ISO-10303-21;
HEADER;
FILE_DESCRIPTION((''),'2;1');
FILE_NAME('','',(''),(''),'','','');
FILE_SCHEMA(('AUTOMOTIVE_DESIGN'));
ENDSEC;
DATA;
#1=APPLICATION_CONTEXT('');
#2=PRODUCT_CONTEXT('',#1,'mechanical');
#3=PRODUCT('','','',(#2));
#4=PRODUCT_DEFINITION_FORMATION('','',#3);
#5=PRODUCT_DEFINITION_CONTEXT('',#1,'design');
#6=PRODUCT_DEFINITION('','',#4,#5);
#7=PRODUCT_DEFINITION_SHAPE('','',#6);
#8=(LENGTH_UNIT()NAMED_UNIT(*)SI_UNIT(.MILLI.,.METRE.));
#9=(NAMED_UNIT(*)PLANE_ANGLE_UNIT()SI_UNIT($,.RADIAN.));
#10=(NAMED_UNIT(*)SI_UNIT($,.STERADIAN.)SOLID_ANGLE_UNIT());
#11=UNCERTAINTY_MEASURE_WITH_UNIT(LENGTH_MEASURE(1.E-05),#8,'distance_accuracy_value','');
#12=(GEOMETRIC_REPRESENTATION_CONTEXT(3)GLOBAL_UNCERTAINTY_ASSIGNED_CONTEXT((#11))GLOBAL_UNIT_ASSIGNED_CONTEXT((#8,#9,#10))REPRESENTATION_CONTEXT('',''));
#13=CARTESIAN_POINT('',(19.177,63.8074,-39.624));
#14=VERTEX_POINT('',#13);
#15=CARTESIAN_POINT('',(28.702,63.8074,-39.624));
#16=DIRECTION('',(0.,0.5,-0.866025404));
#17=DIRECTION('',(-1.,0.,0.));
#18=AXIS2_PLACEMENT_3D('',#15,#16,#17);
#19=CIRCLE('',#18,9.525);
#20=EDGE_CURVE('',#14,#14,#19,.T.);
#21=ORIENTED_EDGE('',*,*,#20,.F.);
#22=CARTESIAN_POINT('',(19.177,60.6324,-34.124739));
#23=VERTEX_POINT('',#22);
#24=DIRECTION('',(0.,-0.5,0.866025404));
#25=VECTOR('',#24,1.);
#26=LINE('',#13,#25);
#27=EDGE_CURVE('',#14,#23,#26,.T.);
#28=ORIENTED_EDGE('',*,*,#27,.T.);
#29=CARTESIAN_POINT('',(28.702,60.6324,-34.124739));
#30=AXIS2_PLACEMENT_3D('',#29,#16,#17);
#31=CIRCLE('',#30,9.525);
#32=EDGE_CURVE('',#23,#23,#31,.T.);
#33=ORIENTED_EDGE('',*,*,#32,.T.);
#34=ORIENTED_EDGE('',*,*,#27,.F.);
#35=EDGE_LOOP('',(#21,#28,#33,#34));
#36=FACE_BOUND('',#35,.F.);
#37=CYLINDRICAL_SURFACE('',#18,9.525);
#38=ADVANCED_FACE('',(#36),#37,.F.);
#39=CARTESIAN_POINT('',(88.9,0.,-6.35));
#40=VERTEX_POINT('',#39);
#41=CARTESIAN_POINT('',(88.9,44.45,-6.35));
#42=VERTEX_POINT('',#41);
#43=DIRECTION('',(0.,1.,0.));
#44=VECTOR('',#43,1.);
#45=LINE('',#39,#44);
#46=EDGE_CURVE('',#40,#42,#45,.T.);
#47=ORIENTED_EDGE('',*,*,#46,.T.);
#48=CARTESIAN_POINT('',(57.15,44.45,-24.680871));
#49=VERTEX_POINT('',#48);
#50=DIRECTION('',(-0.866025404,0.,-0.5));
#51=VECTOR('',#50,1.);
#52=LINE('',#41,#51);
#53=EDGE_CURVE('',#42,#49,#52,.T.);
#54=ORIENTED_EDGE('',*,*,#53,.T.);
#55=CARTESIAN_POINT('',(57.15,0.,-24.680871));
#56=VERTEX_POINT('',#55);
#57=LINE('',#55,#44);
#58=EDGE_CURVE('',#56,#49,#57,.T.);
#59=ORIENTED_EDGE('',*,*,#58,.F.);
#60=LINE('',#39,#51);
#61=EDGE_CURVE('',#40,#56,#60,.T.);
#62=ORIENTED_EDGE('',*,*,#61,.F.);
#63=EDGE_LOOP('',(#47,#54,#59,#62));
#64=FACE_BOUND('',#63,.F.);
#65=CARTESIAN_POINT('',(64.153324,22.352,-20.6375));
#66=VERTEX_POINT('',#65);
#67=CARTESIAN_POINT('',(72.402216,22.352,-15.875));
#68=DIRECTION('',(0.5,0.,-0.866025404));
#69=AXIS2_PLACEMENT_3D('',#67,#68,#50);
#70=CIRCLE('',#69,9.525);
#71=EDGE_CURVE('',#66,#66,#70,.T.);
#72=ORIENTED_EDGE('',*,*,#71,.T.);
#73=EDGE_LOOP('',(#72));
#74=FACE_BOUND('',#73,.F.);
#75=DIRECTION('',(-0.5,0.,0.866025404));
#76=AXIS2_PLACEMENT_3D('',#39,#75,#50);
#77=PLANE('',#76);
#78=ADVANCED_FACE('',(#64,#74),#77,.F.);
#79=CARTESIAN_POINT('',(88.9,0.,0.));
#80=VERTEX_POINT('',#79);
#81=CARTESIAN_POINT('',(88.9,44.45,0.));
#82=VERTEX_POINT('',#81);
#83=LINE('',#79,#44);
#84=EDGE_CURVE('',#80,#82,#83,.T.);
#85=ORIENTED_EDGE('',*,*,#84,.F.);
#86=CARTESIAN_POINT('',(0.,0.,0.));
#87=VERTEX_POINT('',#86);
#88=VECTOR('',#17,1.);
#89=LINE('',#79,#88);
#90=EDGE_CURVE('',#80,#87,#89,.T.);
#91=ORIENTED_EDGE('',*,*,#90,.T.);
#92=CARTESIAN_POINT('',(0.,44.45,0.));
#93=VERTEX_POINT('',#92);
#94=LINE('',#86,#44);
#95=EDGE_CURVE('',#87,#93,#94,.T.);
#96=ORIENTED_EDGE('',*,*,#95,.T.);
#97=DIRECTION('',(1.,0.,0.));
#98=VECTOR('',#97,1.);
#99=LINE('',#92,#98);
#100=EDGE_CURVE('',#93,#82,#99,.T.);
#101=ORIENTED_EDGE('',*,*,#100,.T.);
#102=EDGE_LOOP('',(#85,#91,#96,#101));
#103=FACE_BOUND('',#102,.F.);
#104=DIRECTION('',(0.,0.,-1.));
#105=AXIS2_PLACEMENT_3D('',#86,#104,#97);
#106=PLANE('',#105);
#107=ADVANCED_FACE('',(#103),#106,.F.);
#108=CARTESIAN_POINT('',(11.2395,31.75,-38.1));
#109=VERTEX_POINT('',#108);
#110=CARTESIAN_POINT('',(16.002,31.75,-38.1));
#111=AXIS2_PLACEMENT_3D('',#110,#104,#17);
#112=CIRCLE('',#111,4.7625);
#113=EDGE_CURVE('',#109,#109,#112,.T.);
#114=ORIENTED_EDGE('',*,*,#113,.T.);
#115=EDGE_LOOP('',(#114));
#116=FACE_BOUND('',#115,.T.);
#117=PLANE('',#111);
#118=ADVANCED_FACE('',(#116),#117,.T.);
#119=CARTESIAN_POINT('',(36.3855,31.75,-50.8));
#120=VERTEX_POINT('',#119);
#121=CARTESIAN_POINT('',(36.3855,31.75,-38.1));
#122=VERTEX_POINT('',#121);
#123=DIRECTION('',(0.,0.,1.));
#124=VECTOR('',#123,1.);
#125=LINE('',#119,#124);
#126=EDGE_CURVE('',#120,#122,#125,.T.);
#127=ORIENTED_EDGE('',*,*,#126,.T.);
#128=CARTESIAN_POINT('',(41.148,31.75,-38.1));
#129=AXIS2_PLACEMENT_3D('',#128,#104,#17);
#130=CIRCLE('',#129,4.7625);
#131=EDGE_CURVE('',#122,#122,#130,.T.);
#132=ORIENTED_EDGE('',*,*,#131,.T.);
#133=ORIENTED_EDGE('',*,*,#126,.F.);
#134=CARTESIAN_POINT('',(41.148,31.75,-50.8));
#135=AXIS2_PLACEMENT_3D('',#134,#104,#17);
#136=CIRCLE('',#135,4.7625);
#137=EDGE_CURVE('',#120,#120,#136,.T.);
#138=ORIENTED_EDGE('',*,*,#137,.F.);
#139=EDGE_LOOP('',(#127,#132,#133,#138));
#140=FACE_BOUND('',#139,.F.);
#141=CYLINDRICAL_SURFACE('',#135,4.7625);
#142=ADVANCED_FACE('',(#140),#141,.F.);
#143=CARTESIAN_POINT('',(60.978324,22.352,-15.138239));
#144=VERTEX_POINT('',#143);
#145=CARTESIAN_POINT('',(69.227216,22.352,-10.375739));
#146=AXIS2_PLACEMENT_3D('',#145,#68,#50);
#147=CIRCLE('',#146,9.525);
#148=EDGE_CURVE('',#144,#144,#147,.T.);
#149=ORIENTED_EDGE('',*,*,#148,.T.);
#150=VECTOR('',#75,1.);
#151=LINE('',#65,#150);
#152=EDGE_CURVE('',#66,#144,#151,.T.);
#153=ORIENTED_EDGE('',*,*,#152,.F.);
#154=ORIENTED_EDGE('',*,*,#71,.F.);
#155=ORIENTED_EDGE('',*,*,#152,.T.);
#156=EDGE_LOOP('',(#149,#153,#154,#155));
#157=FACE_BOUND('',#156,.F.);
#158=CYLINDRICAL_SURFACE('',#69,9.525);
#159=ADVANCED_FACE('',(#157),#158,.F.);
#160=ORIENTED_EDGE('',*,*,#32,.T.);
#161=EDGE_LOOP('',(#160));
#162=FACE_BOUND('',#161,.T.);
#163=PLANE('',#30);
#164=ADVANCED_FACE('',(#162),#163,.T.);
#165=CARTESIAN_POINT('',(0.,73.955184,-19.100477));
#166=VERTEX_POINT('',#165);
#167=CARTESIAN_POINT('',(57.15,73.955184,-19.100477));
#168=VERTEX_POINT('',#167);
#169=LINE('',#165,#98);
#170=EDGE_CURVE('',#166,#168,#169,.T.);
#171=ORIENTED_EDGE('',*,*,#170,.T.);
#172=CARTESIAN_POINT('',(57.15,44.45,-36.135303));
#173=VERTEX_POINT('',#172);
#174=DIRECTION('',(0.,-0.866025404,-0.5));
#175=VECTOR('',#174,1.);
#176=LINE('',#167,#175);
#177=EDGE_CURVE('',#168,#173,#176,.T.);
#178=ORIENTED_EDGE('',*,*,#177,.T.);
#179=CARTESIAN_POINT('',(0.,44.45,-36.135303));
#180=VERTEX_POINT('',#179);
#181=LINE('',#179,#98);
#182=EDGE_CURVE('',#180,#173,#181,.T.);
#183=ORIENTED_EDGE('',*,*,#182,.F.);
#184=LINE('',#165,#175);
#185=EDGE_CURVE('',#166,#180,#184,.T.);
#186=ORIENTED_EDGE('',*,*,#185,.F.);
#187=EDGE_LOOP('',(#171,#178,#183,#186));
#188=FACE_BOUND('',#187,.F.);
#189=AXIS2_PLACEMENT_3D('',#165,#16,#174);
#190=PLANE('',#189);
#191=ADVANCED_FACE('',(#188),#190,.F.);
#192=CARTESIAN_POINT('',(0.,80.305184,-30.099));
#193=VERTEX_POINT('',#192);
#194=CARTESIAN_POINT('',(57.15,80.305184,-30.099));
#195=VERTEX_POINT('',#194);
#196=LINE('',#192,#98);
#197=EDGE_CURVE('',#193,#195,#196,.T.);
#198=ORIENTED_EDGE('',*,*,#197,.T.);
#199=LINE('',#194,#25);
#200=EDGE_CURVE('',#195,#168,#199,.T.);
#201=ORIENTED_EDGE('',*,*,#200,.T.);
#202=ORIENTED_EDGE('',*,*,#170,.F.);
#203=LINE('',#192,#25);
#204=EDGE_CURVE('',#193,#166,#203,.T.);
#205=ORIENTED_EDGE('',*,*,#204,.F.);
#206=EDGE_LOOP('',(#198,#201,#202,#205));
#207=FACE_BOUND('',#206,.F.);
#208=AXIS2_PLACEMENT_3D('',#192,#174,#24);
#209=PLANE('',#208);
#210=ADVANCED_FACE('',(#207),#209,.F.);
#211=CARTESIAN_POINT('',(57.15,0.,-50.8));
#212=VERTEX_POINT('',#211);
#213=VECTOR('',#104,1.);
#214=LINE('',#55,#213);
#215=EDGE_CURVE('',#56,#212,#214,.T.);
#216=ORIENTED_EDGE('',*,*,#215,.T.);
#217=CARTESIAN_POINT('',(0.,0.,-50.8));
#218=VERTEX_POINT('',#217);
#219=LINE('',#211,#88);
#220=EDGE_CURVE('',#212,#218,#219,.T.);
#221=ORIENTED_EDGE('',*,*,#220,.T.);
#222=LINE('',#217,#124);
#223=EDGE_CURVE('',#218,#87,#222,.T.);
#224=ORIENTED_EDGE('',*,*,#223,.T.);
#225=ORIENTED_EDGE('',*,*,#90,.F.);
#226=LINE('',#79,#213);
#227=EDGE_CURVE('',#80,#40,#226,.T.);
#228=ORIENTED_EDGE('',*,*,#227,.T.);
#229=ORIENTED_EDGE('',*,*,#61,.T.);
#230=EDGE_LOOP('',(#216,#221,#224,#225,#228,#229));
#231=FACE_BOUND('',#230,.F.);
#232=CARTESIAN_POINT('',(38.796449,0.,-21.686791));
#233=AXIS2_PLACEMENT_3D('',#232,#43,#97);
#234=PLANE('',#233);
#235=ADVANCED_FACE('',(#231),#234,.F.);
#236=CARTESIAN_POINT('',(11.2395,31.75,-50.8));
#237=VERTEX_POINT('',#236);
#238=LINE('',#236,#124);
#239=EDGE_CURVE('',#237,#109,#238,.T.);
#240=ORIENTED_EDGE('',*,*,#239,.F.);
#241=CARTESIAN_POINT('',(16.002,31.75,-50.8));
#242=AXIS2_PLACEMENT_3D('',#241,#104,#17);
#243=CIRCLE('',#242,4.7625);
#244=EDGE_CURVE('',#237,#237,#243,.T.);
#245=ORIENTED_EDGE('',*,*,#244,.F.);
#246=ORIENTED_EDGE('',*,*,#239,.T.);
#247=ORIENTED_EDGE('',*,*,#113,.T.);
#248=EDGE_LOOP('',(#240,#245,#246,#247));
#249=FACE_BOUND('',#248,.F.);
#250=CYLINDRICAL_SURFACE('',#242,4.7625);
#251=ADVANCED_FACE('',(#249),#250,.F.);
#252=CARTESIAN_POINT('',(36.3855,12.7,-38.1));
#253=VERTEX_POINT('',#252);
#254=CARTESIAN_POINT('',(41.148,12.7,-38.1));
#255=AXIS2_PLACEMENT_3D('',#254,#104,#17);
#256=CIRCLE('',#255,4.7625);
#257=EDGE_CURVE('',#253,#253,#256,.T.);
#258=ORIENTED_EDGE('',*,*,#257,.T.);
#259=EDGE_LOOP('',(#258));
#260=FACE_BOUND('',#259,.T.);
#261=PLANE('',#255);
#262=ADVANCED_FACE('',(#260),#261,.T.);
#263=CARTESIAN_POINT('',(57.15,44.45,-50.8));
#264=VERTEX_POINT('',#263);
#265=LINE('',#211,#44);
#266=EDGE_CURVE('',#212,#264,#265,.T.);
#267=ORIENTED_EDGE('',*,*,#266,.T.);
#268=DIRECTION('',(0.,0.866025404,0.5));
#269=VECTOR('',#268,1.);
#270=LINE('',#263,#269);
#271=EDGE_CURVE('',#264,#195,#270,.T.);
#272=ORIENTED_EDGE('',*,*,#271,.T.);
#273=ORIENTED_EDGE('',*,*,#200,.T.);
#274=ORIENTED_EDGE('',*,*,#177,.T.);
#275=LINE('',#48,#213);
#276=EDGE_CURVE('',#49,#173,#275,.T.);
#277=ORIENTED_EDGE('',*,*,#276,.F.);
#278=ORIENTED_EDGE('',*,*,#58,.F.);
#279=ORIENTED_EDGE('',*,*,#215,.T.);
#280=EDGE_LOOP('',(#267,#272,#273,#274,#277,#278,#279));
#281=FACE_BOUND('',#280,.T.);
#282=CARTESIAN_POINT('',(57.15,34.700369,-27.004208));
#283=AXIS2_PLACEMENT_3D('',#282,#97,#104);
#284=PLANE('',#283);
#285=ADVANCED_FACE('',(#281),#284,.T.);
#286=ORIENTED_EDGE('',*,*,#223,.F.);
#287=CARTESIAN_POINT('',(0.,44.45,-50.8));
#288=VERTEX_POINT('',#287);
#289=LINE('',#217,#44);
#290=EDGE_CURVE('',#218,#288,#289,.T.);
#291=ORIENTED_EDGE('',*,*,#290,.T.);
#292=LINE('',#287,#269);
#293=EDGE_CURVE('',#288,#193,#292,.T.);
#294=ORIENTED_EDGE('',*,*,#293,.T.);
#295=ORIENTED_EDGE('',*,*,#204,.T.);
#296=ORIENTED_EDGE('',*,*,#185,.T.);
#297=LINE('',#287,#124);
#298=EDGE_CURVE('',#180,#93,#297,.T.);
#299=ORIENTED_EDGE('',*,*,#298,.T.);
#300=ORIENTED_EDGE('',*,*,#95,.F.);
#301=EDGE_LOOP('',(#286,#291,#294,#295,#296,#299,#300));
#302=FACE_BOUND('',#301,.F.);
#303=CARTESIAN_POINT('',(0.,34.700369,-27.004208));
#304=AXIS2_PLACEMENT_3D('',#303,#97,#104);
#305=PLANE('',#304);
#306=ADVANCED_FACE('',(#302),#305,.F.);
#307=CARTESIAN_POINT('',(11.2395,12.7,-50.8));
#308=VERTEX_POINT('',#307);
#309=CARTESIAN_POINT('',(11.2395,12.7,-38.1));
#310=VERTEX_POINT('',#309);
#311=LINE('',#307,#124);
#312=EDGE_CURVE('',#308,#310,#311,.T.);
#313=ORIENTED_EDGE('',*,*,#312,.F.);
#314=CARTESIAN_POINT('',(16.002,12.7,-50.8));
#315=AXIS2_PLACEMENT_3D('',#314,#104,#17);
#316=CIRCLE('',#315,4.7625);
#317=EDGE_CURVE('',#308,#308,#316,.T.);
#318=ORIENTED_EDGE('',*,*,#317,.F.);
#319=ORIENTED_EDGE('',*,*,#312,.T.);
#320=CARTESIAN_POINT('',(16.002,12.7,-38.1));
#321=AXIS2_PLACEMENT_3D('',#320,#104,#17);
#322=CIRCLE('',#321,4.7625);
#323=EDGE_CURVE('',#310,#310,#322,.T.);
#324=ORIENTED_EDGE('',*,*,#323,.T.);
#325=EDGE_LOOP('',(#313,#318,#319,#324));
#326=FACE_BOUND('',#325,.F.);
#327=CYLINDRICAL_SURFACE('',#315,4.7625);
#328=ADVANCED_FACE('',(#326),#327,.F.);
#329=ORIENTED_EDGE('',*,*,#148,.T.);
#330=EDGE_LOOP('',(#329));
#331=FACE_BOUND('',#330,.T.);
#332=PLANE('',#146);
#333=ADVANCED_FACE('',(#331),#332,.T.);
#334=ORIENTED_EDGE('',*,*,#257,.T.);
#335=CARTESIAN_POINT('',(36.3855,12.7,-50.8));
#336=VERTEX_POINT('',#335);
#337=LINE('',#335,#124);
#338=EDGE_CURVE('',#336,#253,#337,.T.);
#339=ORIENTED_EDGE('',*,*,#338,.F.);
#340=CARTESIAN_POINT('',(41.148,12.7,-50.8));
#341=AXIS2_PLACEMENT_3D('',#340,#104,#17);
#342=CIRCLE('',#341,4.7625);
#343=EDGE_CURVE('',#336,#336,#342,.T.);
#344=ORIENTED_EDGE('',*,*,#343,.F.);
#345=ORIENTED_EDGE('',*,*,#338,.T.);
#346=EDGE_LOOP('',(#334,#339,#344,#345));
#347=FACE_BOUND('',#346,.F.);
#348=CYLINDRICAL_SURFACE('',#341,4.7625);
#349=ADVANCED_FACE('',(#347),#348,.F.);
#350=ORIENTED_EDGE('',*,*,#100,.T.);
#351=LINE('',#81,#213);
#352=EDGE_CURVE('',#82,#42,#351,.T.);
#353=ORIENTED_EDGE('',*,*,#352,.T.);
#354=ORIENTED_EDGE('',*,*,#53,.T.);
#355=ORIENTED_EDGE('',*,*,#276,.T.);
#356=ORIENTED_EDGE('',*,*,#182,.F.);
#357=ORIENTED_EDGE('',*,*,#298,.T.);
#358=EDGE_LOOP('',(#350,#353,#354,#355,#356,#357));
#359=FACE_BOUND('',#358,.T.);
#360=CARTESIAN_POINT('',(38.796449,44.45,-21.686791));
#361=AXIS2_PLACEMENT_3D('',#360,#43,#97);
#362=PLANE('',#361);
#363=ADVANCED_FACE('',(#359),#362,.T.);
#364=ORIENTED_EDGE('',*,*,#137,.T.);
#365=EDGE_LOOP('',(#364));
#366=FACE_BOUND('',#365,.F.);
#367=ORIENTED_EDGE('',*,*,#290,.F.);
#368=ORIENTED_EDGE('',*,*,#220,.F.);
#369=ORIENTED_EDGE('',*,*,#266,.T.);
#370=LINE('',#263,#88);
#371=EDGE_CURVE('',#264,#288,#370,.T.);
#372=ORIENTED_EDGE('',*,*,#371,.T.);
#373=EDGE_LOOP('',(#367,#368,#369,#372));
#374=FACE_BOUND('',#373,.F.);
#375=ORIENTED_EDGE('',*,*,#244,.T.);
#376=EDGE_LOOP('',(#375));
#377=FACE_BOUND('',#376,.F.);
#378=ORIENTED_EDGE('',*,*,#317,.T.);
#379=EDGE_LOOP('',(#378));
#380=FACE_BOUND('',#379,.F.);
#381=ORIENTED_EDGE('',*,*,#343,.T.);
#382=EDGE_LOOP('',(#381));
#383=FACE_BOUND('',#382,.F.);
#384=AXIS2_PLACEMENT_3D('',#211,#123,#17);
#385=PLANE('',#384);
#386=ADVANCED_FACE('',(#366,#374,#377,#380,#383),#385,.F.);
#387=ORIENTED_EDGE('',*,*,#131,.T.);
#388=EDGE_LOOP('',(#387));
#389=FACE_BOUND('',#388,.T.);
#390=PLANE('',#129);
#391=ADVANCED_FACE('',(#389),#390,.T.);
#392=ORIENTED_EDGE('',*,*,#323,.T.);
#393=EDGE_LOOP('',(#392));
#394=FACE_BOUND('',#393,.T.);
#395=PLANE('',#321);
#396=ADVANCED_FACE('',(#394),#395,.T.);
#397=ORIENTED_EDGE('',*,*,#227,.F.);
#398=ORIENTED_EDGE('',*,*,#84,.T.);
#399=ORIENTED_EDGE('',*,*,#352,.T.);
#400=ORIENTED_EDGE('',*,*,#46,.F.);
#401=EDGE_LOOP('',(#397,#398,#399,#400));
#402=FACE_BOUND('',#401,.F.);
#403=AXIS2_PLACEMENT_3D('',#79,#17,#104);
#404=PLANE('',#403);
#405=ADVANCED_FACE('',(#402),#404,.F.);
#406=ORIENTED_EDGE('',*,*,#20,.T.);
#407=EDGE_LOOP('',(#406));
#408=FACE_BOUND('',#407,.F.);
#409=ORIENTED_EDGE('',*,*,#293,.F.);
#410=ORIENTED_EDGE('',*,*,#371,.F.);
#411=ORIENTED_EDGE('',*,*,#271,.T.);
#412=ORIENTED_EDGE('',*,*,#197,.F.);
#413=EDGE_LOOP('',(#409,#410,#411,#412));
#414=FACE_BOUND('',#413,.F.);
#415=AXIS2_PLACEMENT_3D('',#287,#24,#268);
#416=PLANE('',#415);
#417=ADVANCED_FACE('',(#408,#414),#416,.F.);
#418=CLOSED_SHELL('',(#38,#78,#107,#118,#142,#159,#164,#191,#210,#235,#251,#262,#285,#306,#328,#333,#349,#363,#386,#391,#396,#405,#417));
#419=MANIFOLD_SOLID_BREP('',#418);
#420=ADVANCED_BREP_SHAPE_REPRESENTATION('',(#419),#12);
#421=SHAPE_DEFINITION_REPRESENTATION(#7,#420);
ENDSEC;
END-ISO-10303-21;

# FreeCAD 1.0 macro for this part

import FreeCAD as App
import Part
import Sketcher
from FreeCAD import Vector
Q = App.Units.Quantity

doc = App.newDocument("Part")
body = doc.addObject("PartDesign::Body", "Body")

# Sketch on XZ plane
sketch1 = doc.addObject("Sketcher::SketchObject", "Sketch")
body.addObject(sketch1)
sketch1.AttachmentSupport = (doc.XZ_Plane, [""])
sketch1.MapMode = "FlatFace"
sketch1.addGeometry([
    Part.LineSegment(Vector(89, 0, 0), Vector(89, -6, 0)),  # 0
    Part.LineSegment(Vector(89, -6, 0), Vector(57, -25, 0)),  # 1
    Part.LineSegment(Vector(57, -25, 0), Vector(57, -51, 0)),  # 2
    Part.LineSegment(Vector(57, -51, 0), Vector(0, -51, 0)),  # 3
    Part.LineSegment(Vector(0, -51, 0), Vector(0, 0, 0)),  # 4
    Part.LineSegment(Vector(0, 0, 0), Vector(89, 0, 0)),  # 5
], False)
sketch1.addConstraint([
    Sketcher.Constraint("Coincident", 0, 2, 1, 1),
    Sketcher.Constraint("Coincident", 1, 2, 2, 1),
    Sketcher.Constraint("Coincident", 2, 2, 3, 1),
    Sketcher.Constraint("Coincident", 3, 2, 4, 1),
    Sketcher.Constraint("Coincident", 4, 2, 5, 1),
    Sketcher.Constraint("Coincident", 5, 2, 0, 1),
    Sketcher.Constraint("Vertical", 0),
    Sketcher.Constraint("Vertical", 2),
    Sketcher.Constraint("Horizontal", 3),
    Sketcher.Constraint("Vertical", 4),
    Sketcher.Constraint("Horizontal", 5),
    Sketcher.Constraint("Coincident", 4, 2, -1, 1),
    Sketcher.Constraint("DistanceY", 4, 1, 4, 2, Q("2 in")),
    Sketcher.Constraint("DistanceX", 5, 1, 5, 2, Q("3.5 in")),
    Sketcher.Constraint("Angle", 1, Q("-150 deg")),
    Sketcher.Constraint("DistanceX", 3, 2, 3, 1, Q("2.25 in")),
    Sketcher.Constraint("DistanceY", 0, 2, 0, 1, Q("0.25 in")),
])
pad1 = doc.addObject("PartDesign::Pad", "Pad")
body.addObject(pad1)
pad1.Profile = sketch1
pad1.Length = Q("1.75 in")
pad1.Reversed = True

# Sketch on an angled plane
sketch2 = doc.addObject("Sketcher::SketchObject", "Sketch001")
body.addObject(sketch2)
sketch2.Placement = App.Placement(Vector(24.974631, 0, -43.257329), App.Rotation(Vector(-0.866025404, 0, -0.5), Vector(0, 1, 0), Vector(0.5, 0, -0.866025404), "ZXY"))
sketch2.addGeometry(Part.Circle(Vector(-55, 22, 0), Vector(0, 0, 1), 10), False)
sketch2.addConstraint([
    Sketcher.Constraint("Diameter", 0, Q("0.75 in")),
    Sketcher.Constraint("DistanceY", -1, 1, 0, 3, Q("0.88 in")),
    Sketcher.Constraint("DistanceX", 0, 3, -1, 1, 54.764658),
])
pocket1 = doc.addObject("PartDesign::Pocket", "Pocket")
body.addObject(pocket1)
pocket1.Profile = sketch2
pocket1.Length = Q("0.25 in")

# Sketch on YZ plane
sketch3 = doc.addObject("Sketcher::SketchObject", "Sketch002")
body.addObject(sketch3)
sketch3.AttachmentSupport = (doc.YZ_Plane, [""])
sketch3.MapMode = "FlatFace"
sketch3.addGeometry([
    Part.LineSegment(Vector(80, -30, 0), Vector(44, -51, 0)),  # 0
    Part.LineSegment(Vector(44, -51, 0), Vector(0, -51, 0)),  # 1
    Part.LineSegment(Vector(0, -51, 0), Vector(0, 0, 0)),  # 2
    Part.LineSegment(Vector(0, 0, 0), Vector(44, 0, 0)),  # 3
    Part.LineSegment(Vector(44, 0, 0), Vector(44, -36, 0)),  # 4
    Part.LineSegment(Vector(44, -36, 0), Vector(74, -19, 0)),  # 5
    Part.LineSegment(Vector(74, -19, 0), Vector(80, -30, 0)),  # 6
], False)
sketch3.addConstraint([
    Sketcher.Constraint("Coincident", 0, 2, 1, 1),
    Sketcher.Constraint("Coincident", 1, 2, 2, 1),
    Sketcher.Constraint("Coincident", 2, 2, 3, 1),
    Sketcher.Constraint("Coincident", 3, 2, 4, 1),
    Sketcher.Constraint("Coincident", 4, 2, 5, 1),
    Sketcher.Constraint("Coincident", 5, 2, 6, 1),
    Sketcher.Constraint("Coincident", 6, 2, 0, 1),
    Sketcher.Constraint("Horizontal", 1),
    Sketcher.Constraint("Vertical", 2),
    Sketcher.Constraint("Horizontal", 3),
    Sketcher.Constraint("Vertical", 4),
    Sketcher.Constraint("Coincident", 2, 2, -1, 1),
    Sketcher.Constraint("Parallel", 0, 5),
    Sketcher.Constraint("Perpendicular", 5, 6),
    Sketcher.Constraint("Vertical", 0, 2, 3, 2),
    Sketcher.Constraint("DistanceY", 2, 1, 2, 2, Q("2 in")),
    Sketcher.Constraint("Angle", 0, Q("-150 deg")),
    Sketcher.Constraint("Distance", 6, Q("0.5 in")),
    Sketcher.Constraint("DistanceX", 1, 2, 1, 1, Q("1.75 in")),
    Sketcher.Constraint("Distance", 0, Q("1.63 in")),
])
pad2 = doc.addObject("PartDesign::Pad", "Pad001")
body.addObject(pad2)
pad2.Profile = sketch3
pad2.Length = Q("2.25 in")

# Sketch on an angled plane
sketch4 = doc.addObject("Sketcher::SketchObject", "Sketch003")
body.addObject(sketch4)
sketch4.Placement = App.Placement(Vector(0, 33.109545, -57.347415), App.Rotation(Vector(-1, 0, 0), Vector(0, 0.866025404, 0.5), Vector(0, 0.5, -0.866025404), "ZXY"))
sketch4.addGeometry(Part.Circle(Vector(-29, 35, 0), Vector(0, 0, 1), 10), False)
sketch4.addConstraint([
    Sketcher.Constraint("Diameter", 0, Q("0.75 in")),
    Sketcher.Constraint("DistanceX", 0, 3, -1, 1, Q("1.13 in")),
    Sketcher.Constraint("DistanceY", -1, 1, 0, 3, 35.446829),
])
pocket2 = doc.addObject("PartDesign::Pocket", "Pocket001")
body.addObject(pocket2)
pocket2.Profile = sketch4
pocket2.Length = Q("0.25 in")

# Sketch on XY plane
sketch5 = doc.addObject("Sketcher::SketchObject", "Sketch004")
body.addObject(sketch5)
sketch5.AttachmentSupport = (doc.XY_Plane, [""])
sketch5.MapMode = "FlatFace"
sketch5.AttachmentOffset = App.Placement(Vector(0, 0, -2 * 25.4), App.Rotation())
sketch5.addGeometry([
    Part.Circle(Vector(41.1, 31.8, 0), Vector(0, 0, 1), 4.8),
    Part.Circle(Vector(16, 31.8, 0), Vector(0, 0, 1), 4.8),
    Part.Circle(Vector(16, 12.7, 0), Vector(0, 0, 1), 4.8),
    Part.Circle(Vector(41.1, 12.7, 0), Vector(0, 0, 1), 4.8),
], False)
sketch5.addConstraint([
    Sketcher.Constraint("Equal", 0, 1),
    Sketcher.Constraint("Equal", 1, 2),
    Sketcher.Constraint("Equal", 2, 3),
    Sketcher.Constraint("Horizontal", 0, 3, 1, 3),
    Sketcher.Constraint("Horizontal", 2, 3, 3, 3),
    Sketcher.Constraint("Vertical", 1, 3, 2, 3),
    Sketcher.Constraint("Vertical", 0, 3, 3, 3),
    Sketcher.Constraint("Diameter", 0, Q("0.375 in")),
    Sketcher.Constraint("DistanceY", -1, 1, 2, 3, Q("0.5 in")),
    Sketcher.Constraint("DistanceX", -1, 1, 0, 3, Q("1.62 in")),
    Sketcher.Constraint("DistanceY", -1, 1, 0, 3, Q("1.25 in")),
    Sketcher.Constraint("DistanceX", -1, 1, 1, 3, Q("0.63 in")),
])
pocket3 = doc.addObject("PartDesign::Pocket", "Pocket002")
body.addObject(pocket3)
pocket3.Profile = sketch5
pocket3.Length = Q("0.5 in")
pocket3.Reversed = True

doc.recompute()
